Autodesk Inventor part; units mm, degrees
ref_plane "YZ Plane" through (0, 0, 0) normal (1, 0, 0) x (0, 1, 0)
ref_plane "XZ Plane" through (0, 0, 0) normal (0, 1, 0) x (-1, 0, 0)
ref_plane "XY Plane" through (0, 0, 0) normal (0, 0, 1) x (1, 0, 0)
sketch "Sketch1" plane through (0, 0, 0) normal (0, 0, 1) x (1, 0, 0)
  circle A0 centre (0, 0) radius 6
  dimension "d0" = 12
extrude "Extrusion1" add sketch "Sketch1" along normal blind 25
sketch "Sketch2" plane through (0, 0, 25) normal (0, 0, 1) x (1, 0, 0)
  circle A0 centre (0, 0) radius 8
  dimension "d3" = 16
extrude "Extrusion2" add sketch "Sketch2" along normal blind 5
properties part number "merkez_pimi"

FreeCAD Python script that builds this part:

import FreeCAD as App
import Part
import Sketcher

V = App.Vector

doc = App.newDocument("Part")
body = doc.addObject("PartDesign::Body", "Body")

# Sketch on XY plane
sketch1 = body.newObject("Sketcher::SketchObject", "Sketch")
sketch1.AttachmentSupport = (doc.getObject("XY_Plane"), [""])
sketch1.MapMode = "FlatFace"
sketch1.addGeometry(Part.Circle(V(0, 0, 0), V(0, 0, 1), 6), False)
sketch1.addConstraint([
    Sketcher.Constraint("Coincident", 0, 3, -1, 1),
    Sketcher.Constraint("Diameter", 0, 12.0),
])
pad1 = body.newObject("PartDesign::Pad", "Pad")
pad1.Profile = sketch1
pad1.Length = 25

# Sketch on XY plane
sketch2 = body.newObject("Sketcher::SketchObject", "Sketch001")
sketch2.AttachmentSupport = (doc.getObject("XY_Plane"), [""])
sketch2.MapMode = "FlatFace"
sketch2.AttachmentOffset = App.Placement(V(0, 0, 25), App.Rotation())
sketch2.addGeometry(Part.Circle(V(0, 0, 0), V(0, 0, 1), 8), False)
sketch2.addConstraint([
    Sketcher.Constraint("Coincident", 0, 3, -1, 1),
    Sketcher.Constraint("Diameter", 0, 16.0),
])
pad2 = body.newObject("PartDesign::Pad", "Pad001")
pad2.Profile = sketch2
pad2.Length = 5

doc.recompute()
